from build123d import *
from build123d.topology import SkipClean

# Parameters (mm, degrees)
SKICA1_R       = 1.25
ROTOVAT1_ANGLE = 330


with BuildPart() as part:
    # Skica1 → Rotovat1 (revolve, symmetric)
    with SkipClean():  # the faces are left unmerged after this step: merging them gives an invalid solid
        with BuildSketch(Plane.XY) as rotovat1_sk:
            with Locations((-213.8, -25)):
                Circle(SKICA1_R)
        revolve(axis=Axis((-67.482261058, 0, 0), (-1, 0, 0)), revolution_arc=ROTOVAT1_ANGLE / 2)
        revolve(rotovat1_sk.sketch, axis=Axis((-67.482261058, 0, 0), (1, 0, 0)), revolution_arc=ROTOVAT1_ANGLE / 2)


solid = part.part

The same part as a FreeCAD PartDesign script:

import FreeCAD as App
import Part
import Sketcher

V = App.Vector

doc = App.newDocument("Part")
params = doc.addObject("Spreadsheet::Sheet", "Params")
for row, (alias, value) in enumerate([
    ("sketch1_diameter", "2.5 mm"),
    ("revolution_angle", "165 deg"),
    ("sketch2_diameter", "2.5 mm"),
    ("revolution2_angle", "165 deg"),
], start=1):
    params.set(f"A{row}", alias)
    params.set(f"B{row}", "=" + value)
    params.setAlias(f"B{row}", alias)

body = doc.addObject("PartDesign::Body", "Body")

sketch1 = body.newObject("Sketcher::SketchObject", "Sketch")
sketch1.AttachmentSupport = (doc.getObject("XY_Plane"), [""])
sketch1.MapMode = "FlatFace"
sketch1.addGeometry(Part.Circle(V(-213.8, -25, 0), V(0, 0, 1), 1.25), False)
sketch1.addConstraint(Sketcher.Constraint("Diameter", 0, 2.5))
sketch1.addConstraint(Sketcher.Constraint("DistanceY", 0, 3, -1, 1, 25.0))
sketch1.addConstraint(Sketcher.Constraint("DistanceX", 0, 3, -1, 1, 213.8))
sketch1.setExpression("Constraints[0]", "Params.sketch1_diameter")
revolution = body.newObject("PartDesign::Revolution", "Revolution")
revolution.Profile = sketch1
revolution.ReferenceAxis = (sketch1, ["H_Axis"])
revolution.setExpression("Angle", "Params.revolution_angle")
revolution.Reversed = True

sketch2 = body.newObject("Sketcher::SketchObject", "Sketch001")
sketch2.AttachmentSupport = (doc.getObject("XY_Plane"), [""])
sketch2.MapMode = "FlatFace"
sketch2.addGeometry(Part.Circle(V(-213.8, -25, 0), V(0, 0, 1), 1.25), False)
sketch2.addConstraint(Sketcher.Constraint("Diameter", 0, 2.5))
sketch2.addConstraint(Sketcher.Constraint("DistanceY", 0, 3, -1, 1, 25.0))
sketch2.addConstraint(Sketcher.Constraint("DistanceX", 0, 3, -1, 1, 213.8))
sketch2.setExpression("Constraints[0]", "Params.sketch2_diameter")
revolution2 = body.newObject("PartDesign::Revolution", "Revolution001")
revolution2.Profile = sketch2
revolution2.ReferenceAxis = (sketch2, ["H_Axis"])
revolution2.setExpression("Angle", "Params.revolution2_angle")

doc.recompute()
